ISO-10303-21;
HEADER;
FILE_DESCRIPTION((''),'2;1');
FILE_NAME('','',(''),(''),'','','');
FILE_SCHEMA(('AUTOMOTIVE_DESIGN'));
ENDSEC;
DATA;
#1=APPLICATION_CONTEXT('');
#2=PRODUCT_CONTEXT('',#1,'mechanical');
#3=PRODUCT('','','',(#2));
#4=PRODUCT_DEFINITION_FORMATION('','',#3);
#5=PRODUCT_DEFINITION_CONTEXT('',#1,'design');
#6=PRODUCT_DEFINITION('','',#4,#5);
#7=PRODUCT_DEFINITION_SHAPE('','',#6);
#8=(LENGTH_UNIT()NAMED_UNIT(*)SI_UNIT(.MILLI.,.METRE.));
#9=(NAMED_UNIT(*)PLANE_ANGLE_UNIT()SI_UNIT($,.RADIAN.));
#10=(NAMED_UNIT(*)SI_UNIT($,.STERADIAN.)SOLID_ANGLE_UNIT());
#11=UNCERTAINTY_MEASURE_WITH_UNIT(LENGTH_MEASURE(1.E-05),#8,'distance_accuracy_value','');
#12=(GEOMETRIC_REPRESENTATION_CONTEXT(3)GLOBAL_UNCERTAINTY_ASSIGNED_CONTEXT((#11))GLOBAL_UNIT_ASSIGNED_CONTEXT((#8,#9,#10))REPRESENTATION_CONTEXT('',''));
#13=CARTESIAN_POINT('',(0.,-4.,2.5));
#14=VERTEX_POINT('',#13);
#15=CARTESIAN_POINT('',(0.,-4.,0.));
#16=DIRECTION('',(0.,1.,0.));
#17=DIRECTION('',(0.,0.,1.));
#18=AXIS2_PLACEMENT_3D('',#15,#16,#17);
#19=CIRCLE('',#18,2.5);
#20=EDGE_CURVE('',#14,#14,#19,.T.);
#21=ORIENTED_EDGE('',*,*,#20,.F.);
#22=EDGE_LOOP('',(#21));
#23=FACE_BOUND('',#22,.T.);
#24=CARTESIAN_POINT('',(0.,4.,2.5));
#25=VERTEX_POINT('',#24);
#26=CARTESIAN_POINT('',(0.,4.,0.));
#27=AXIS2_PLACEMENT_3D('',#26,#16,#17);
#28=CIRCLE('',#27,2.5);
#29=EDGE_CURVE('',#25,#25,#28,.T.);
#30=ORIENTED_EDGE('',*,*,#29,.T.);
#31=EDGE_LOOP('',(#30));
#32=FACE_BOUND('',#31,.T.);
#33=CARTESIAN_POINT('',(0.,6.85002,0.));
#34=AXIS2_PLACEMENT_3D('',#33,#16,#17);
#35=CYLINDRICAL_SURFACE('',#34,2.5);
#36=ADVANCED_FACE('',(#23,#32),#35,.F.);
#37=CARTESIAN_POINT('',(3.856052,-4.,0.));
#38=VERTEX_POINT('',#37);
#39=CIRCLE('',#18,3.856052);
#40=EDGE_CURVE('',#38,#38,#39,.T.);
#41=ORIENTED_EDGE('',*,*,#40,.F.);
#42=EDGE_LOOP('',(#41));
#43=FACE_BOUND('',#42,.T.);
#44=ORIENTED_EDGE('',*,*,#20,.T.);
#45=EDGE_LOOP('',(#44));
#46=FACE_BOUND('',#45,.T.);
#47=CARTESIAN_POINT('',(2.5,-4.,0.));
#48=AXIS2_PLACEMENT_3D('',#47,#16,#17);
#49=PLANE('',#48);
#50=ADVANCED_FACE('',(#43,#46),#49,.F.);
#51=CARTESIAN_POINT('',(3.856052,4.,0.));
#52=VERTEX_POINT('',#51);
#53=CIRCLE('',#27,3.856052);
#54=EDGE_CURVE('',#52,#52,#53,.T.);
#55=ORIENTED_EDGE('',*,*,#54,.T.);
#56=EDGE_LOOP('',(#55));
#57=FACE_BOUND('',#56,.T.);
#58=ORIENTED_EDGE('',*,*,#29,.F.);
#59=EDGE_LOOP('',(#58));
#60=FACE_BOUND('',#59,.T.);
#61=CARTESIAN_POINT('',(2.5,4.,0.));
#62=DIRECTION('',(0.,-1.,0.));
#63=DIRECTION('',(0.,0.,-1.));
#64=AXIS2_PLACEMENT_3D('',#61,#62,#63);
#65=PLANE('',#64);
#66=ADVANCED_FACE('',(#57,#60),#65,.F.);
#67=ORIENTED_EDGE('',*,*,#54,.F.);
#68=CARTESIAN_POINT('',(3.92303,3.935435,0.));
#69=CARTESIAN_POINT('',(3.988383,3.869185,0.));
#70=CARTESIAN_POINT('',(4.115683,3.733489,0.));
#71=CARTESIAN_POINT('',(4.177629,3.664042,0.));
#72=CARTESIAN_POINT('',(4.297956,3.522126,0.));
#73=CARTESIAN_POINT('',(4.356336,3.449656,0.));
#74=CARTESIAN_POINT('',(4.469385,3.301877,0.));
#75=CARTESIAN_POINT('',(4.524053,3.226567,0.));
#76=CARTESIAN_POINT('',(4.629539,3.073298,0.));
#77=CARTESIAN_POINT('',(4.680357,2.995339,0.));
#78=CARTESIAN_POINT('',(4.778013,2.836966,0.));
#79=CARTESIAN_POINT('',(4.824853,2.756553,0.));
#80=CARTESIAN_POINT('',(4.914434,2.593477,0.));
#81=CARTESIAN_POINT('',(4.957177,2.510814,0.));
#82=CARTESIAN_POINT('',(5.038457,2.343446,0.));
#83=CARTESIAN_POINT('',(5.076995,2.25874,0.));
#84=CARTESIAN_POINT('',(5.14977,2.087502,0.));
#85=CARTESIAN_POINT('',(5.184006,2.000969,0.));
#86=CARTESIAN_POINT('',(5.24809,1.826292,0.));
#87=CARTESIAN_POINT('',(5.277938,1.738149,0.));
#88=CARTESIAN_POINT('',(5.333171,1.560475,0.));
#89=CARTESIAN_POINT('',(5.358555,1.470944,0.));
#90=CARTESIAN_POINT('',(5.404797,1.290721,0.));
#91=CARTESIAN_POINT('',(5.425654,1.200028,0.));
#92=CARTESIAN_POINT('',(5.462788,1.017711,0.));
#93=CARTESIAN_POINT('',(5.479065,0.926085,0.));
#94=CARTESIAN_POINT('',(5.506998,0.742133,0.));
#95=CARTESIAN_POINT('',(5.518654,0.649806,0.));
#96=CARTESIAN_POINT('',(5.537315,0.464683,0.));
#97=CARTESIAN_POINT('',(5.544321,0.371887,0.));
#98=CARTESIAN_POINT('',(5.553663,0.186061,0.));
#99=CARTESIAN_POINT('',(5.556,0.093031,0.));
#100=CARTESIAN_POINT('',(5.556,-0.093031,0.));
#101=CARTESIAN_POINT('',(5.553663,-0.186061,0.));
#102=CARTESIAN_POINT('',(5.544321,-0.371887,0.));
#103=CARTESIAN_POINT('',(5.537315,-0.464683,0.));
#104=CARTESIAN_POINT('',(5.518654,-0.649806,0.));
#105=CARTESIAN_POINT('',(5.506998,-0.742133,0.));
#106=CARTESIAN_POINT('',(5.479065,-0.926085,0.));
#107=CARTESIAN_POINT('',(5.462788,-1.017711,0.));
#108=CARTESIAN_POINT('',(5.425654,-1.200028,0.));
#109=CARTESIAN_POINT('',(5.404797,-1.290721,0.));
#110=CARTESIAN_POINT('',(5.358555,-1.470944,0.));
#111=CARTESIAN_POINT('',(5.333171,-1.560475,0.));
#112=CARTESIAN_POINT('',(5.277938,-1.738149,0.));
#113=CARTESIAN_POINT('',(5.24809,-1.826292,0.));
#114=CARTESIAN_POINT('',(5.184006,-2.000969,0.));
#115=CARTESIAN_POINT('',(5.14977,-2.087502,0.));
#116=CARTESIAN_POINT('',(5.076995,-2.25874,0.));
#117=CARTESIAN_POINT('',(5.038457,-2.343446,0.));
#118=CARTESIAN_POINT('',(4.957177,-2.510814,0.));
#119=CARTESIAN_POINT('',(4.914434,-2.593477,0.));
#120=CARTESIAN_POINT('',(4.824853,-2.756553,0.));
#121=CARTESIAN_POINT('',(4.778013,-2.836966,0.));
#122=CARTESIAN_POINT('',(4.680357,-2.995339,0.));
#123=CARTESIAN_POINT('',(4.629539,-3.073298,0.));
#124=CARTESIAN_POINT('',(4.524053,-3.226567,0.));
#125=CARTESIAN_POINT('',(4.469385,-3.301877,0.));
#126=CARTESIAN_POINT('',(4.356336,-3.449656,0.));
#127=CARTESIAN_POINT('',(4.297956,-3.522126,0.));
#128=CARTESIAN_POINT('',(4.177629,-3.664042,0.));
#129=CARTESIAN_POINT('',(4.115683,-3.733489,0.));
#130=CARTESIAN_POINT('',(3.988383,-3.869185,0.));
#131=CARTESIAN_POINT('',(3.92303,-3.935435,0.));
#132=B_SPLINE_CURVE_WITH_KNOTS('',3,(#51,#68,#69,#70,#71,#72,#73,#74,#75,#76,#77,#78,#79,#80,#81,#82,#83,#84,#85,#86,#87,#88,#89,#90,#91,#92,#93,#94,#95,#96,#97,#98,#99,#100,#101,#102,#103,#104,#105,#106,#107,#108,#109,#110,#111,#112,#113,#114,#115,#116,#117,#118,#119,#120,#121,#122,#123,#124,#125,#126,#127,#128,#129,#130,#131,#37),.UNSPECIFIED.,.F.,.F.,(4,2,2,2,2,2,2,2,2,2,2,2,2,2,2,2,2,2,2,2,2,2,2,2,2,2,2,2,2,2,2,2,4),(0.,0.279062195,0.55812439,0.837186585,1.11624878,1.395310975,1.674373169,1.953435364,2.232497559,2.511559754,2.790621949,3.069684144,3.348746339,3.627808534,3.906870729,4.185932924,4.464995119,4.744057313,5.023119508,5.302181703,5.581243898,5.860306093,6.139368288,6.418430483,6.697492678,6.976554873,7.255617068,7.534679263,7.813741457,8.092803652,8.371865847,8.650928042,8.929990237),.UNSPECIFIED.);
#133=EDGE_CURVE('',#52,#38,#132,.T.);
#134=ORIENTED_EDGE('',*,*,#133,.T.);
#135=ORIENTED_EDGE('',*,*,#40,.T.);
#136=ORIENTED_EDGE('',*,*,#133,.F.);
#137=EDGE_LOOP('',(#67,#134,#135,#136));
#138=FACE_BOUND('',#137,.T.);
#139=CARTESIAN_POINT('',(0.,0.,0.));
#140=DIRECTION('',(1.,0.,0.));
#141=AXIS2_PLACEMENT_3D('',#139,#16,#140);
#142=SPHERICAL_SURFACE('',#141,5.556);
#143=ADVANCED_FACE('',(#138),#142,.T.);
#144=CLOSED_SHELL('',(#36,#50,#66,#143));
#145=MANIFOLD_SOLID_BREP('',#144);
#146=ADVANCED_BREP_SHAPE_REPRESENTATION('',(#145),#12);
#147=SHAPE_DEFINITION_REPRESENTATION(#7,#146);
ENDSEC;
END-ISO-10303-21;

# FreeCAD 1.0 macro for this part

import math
import FreeCAD as App
import Part
import Sketcher
from FreeCAD import Vector
Q = App.Units.Quantity

doc = App.newDocument("Part")
params = doc.addObject("Spreadsheet::Sheet", "Params")
for row, (alias, value) in enumerate([
    ("sketch1_height", "8 mm"),
    ("revolution_angle", "360 deg"),
], start=1):
    params.set(f"A{row}", alias)
    params.set(f"B{row}", "=" + value)
    params.setAlias(f"B{row}", alias)

body = doc.addObject("PartDesign::Body", "Body")

# Sketch on XY plane
sketch1 = body.newObject("Sketcher::SketchObject", "Sketch")
sketch1.AttachmentSupport = (doc.getObject("XY_Plane"), [""])
sketch1.MapMode = "FlatFace"
sketch1.addGeometry([
    Part.LineSegment(Vector(2.5, 4, 0), Vector(2.5, -4, 0)),
    Part.LineSegment(Vector(2.5, -4, 0), Vector(3.856052, -4, 0)),
    Part.ArcOfCircle(Part.Circle(Vector(0, 0, 0), Vector(0, 0, 1), 5.556), math.radians(-46.049725), math.radians(46.049725)),
    Part.LineSegment(Vector(3.856052, 4, 0), Vector(2.5, 4, 0)),
], False)
sketch1.addConstraint([
    Sketcher.Constraint("Coincident", 0, 2, 1, 1),
    Sketcher.Constraint("Coincident", 1, 2, 2, 1),
    Sketcher.Constraint("Coincident", 2, 2, 3, 1),
    Sketcher.Constraint("Coincident", 3, 2, 0, 1),
    Sketcher.Constraint("Vertical", 0),
    Sketcher.Constraint("Horizontal", 1),
    Sketcher.Constraint("Horizontal", 3),
    Sketcher.Constraint("Coincident", 2, 3, -1, 1),
    Sketcher.Constraint("Vertical", 1, 2, 2, 2),
    Sketcher.Constraint("DistanceY", 0, 2, 0, 1, Q("8 mm")),
    Sketcher.Constraint("Radius", 2, Q("5.556 mm")),
    Sketcher.Constraint("DistanceX", -1, 1, 0, 2, Q("2.5 mm")),
])
sketch1.setExpression("Constraints[9]", "Params.sketch1_height")
revolution = body.newObject("PartDesign::Revolution", "Revolution")
revolution.Profile = sketch1
revolution.ReferenceAxis = (sketch1, ["V_Axis"])
revolution.setExpression("Angle", "Params.revolution_angle")

doc.recompute()
